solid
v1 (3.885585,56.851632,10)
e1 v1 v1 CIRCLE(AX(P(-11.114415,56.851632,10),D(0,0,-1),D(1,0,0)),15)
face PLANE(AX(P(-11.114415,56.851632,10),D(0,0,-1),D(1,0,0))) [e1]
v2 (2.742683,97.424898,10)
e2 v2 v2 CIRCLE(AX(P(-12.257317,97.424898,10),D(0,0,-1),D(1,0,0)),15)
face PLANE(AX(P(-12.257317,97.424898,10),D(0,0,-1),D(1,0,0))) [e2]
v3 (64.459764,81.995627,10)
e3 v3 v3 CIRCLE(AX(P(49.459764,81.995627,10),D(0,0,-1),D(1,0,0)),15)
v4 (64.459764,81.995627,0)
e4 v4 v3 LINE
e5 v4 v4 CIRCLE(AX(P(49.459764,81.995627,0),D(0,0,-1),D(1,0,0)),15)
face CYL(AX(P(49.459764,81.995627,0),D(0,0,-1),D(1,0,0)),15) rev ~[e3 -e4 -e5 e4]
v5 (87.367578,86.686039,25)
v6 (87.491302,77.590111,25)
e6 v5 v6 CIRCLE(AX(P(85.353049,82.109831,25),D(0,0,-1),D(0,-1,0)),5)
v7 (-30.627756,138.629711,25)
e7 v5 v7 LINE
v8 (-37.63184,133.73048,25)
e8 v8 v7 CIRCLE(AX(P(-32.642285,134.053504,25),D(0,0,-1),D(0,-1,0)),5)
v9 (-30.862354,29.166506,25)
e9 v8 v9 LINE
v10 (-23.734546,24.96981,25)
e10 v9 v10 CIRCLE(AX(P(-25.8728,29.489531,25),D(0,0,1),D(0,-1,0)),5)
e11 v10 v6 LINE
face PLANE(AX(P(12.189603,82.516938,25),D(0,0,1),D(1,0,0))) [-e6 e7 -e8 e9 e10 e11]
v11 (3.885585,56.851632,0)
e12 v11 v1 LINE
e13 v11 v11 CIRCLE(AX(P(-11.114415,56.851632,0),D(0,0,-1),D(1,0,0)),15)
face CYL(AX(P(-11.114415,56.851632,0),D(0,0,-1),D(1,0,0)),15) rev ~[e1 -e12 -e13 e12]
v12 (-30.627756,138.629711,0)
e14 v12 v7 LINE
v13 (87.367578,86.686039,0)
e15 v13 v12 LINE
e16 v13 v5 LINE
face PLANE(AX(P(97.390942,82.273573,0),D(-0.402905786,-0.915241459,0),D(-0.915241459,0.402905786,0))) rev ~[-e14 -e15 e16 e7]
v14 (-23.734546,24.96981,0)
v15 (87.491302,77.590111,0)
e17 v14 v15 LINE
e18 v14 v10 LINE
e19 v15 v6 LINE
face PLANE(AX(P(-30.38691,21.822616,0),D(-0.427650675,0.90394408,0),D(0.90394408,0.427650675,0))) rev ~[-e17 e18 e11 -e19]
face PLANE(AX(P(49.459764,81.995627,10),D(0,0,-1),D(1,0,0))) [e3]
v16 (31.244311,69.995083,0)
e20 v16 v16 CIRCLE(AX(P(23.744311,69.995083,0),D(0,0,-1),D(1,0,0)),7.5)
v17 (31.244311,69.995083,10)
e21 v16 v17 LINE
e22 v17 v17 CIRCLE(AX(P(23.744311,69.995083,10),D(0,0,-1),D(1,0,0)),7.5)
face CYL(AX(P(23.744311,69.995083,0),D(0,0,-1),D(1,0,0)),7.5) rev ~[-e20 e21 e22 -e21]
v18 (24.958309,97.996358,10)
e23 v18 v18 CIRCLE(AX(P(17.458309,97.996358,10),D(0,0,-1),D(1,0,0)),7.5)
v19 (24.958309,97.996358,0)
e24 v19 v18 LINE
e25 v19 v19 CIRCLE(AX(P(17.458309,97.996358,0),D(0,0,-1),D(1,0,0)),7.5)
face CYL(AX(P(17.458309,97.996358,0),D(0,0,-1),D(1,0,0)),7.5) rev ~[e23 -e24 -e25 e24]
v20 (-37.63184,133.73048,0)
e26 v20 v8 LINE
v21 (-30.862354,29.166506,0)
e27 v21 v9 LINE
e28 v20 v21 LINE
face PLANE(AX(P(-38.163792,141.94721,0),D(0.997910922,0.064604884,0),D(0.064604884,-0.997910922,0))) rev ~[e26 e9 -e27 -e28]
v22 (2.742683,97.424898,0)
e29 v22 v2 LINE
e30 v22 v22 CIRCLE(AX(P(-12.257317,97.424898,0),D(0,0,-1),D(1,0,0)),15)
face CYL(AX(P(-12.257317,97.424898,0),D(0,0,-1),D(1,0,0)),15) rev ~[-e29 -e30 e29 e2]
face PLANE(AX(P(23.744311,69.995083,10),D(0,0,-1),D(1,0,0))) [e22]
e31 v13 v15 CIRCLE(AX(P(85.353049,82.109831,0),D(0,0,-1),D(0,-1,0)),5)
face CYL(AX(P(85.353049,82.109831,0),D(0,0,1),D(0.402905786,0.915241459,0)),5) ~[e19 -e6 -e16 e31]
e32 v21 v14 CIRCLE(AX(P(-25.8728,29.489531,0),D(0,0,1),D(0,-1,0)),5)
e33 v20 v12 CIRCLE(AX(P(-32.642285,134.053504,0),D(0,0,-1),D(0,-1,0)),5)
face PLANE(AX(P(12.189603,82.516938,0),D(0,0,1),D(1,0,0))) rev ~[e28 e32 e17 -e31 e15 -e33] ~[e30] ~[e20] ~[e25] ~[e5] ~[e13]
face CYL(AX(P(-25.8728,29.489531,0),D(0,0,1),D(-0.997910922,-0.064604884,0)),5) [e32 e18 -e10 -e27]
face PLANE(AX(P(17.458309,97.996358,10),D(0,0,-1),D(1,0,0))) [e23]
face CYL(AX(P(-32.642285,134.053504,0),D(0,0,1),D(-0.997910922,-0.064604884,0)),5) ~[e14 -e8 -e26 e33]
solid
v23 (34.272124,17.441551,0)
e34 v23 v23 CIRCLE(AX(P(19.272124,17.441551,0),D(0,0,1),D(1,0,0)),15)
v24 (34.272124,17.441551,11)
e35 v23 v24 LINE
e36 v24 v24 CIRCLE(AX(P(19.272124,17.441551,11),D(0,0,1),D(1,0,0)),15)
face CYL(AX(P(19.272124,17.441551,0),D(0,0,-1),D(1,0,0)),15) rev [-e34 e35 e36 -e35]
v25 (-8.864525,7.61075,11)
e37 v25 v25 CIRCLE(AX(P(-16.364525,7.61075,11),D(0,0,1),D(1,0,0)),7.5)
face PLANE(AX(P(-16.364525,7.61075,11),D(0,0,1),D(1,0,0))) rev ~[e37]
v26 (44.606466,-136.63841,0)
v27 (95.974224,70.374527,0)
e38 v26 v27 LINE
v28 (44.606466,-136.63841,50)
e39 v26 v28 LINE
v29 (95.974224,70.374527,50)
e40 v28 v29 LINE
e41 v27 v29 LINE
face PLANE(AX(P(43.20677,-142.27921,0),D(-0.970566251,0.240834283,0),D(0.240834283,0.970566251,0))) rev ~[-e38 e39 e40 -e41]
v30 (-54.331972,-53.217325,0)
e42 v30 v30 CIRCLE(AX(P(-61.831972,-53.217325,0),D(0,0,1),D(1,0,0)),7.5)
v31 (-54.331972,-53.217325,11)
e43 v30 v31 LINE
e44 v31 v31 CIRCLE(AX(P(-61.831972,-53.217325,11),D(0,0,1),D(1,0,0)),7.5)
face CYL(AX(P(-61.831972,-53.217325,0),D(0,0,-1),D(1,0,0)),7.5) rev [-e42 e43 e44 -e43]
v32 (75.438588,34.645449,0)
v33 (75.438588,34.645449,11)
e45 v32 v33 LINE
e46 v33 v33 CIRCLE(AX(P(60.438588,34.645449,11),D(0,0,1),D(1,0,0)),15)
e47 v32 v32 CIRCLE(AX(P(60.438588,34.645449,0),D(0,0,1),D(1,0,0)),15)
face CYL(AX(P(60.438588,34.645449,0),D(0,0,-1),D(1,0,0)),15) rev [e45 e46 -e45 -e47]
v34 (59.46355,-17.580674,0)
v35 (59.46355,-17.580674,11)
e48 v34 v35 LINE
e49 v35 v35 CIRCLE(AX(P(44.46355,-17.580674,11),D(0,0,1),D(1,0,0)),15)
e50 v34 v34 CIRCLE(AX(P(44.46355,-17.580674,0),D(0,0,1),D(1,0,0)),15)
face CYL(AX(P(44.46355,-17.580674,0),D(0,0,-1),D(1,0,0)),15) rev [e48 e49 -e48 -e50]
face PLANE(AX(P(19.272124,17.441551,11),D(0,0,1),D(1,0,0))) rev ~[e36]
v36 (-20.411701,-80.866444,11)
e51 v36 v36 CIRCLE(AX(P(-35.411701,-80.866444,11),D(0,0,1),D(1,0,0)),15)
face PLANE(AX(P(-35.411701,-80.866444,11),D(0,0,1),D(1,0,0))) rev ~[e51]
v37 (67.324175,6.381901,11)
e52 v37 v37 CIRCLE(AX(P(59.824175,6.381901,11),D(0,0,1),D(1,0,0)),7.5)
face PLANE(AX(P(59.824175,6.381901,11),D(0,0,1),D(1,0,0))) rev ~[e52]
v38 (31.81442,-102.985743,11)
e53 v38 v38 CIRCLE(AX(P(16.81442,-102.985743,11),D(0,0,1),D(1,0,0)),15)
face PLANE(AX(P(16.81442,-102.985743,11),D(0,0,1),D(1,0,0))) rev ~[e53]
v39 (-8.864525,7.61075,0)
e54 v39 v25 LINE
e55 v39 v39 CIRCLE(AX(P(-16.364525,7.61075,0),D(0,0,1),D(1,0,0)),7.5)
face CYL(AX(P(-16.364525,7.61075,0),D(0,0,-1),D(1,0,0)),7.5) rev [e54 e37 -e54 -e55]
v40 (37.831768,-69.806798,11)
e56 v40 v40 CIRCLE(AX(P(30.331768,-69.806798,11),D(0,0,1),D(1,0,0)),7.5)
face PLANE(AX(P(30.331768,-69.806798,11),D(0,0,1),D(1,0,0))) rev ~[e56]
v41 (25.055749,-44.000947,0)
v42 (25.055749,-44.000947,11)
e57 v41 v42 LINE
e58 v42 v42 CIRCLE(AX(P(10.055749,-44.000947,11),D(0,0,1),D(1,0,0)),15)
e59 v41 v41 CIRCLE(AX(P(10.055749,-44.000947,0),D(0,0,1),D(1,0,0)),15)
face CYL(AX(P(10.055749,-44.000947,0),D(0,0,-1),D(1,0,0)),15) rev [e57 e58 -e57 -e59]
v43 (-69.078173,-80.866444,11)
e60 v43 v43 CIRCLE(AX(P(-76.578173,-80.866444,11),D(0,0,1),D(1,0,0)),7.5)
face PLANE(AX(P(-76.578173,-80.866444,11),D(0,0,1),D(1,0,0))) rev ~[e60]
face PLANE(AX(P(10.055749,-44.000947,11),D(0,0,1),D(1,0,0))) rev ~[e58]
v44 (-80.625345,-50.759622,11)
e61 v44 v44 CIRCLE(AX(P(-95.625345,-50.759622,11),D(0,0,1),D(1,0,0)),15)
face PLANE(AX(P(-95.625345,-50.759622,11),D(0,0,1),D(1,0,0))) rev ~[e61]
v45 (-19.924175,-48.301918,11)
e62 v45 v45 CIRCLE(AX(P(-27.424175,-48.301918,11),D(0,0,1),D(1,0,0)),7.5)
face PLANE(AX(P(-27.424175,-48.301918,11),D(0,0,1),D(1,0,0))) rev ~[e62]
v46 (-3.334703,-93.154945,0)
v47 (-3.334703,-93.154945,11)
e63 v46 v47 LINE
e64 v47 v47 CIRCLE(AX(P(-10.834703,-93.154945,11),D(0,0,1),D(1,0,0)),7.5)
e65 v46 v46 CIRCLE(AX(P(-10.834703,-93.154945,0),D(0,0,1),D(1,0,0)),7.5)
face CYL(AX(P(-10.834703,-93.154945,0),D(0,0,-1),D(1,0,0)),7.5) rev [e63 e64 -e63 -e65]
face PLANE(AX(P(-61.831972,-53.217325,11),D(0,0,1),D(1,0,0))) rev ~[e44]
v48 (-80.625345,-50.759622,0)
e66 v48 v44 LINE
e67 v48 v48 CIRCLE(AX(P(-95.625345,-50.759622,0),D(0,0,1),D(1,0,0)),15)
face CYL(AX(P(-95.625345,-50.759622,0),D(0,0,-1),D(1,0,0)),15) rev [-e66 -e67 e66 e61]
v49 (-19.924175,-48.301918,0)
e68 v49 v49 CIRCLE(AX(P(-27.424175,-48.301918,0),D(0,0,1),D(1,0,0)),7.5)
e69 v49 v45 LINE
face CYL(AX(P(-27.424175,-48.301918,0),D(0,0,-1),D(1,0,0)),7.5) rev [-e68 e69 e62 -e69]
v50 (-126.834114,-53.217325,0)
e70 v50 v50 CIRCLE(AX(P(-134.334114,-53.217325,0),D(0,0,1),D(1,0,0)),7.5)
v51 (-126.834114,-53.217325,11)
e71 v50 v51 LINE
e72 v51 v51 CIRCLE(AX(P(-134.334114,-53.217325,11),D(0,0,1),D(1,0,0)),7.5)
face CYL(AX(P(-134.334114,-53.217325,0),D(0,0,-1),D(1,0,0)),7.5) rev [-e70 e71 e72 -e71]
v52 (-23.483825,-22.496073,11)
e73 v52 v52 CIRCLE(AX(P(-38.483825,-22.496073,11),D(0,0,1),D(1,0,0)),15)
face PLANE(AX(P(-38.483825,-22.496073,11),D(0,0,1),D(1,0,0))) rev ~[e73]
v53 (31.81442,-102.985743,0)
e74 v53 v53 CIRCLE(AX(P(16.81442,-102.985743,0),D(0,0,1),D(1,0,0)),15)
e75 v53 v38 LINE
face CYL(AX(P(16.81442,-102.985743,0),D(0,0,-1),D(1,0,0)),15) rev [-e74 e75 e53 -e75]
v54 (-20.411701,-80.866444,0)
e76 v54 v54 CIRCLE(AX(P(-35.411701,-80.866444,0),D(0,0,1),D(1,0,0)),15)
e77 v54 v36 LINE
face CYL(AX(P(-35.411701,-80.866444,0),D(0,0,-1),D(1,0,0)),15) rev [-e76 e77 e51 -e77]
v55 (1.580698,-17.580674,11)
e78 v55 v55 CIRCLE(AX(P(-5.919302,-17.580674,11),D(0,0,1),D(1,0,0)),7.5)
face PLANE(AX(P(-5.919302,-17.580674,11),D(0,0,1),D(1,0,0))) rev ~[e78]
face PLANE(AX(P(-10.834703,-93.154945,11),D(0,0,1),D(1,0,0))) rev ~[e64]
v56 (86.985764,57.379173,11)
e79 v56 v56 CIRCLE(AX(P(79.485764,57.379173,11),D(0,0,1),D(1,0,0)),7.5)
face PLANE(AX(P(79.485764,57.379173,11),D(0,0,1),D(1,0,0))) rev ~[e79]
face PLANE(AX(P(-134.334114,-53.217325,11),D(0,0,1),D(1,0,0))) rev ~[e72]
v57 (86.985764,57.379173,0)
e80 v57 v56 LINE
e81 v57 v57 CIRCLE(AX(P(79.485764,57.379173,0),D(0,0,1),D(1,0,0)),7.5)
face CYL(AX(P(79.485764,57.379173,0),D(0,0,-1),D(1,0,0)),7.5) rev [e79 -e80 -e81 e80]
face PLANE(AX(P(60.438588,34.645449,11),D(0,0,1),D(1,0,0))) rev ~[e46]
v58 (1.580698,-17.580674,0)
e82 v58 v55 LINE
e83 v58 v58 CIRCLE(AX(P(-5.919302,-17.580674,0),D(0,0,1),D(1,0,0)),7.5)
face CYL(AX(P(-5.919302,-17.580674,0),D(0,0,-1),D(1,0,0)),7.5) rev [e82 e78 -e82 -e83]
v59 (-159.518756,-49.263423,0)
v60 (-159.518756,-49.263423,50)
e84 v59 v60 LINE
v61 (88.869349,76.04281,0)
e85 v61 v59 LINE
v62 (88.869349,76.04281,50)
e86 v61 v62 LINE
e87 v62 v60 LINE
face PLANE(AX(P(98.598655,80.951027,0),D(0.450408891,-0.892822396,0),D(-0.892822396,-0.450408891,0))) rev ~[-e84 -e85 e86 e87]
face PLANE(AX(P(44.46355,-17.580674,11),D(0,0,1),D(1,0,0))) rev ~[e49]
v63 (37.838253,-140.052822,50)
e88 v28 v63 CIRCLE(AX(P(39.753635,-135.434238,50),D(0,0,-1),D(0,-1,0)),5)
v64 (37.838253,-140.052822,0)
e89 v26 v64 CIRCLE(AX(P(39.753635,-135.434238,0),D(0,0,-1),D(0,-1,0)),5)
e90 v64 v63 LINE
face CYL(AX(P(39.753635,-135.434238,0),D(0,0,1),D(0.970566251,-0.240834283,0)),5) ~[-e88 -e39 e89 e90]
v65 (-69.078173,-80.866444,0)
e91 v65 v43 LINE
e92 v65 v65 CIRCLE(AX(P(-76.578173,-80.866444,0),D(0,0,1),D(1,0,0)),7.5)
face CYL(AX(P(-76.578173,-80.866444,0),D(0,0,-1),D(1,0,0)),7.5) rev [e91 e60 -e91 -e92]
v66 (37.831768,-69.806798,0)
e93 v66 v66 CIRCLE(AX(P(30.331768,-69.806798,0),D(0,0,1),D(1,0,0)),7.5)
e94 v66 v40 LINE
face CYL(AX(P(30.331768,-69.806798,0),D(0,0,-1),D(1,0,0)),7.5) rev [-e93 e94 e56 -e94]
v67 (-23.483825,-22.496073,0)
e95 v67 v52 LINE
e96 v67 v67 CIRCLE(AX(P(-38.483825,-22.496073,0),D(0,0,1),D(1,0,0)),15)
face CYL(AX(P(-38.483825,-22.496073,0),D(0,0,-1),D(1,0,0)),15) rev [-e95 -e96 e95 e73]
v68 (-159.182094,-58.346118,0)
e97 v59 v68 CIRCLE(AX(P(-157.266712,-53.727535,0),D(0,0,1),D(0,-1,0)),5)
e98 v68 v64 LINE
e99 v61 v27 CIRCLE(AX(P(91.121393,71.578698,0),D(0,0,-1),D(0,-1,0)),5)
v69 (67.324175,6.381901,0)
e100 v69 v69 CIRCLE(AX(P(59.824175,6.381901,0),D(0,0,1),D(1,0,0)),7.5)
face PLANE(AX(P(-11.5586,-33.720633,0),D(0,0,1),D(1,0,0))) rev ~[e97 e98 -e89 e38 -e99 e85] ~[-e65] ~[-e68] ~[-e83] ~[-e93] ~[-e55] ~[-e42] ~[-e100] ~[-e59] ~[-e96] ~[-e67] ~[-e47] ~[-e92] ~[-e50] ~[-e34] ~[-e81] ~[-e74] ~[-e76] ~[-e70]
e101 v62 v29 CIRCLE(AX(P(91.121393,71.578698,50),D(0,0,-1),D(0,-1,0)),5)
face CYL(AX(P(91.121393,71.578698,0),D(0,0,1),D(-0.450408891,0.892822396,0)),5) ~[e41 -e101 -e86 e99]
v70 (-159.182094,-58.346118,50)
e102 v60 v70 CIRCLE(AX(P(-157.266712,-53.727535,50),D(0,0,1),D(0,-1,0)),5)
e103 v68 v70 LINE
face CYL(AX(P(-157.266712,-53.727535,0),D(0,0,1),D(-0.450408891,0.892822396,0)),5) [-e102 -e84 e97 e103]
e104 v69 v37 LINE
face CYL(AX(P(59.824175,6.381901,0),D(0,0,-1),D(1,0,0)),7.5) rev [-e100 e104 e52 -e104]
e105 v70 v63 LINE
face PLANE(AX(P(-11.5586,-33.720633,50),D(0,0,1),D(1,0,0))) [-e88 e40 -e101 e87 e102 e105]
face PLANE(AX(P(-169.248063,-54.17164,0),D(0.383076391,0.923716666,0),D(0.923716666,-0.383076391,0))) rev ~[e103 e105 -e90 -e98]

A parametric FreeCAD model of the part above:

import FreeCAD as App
import Part
import Sketcher
Q = App.Units.Quantity


def edges_at(feature, points):
    """Names of the edges that pass closest to the given points."""
    edges = feature.Shape.Edges
    near = lambda p: min(range(len(edges)), key=lambda i: edges[i].distToShape(Part.Vertex(*p))[0])
    return sorted({f"Edge{near(p) + 1}" for p in points})


def add_polygon(sketch, points):
    """Adds a closed chain of lines whose ends are joined by coincident constraints."""
    first, n = sketch.GeometryCount, len(points)
    for a, b in zip(points, points[1:] + points[:1]):
        sketch.addGeometry(Part.LineSegment(App.Vector(*a, 0), App.Vector(*b, 0)), False)
    for i in range(n):
        sketch.addConstraint(Sketcher.Constraint("Coincident", first + i, 2, first + (i + 1) % n, 1))

doc = App.newDocument("Part")
body = doc.addObject("PartDesign::Body", "Body")

# Sketch on XY plane
sketch1 = body.newObject("Sketcher::SketchObject", "Sketch")
sketch1.AttachmentSupport = (doc.getObject("XY_Plane"), [""])
sketch1.MapMode = "FlatFace"
add_polygon(sketch1, [(99, 81), (-169, -54), (43, -142)])  # lines 0-2
sketch1.addConstraint([
    Sketcher.Constraint("Equal", 1, 2),
    Sketcher.Constraint("Distance", 0, Q("299.999999 mm")),
    Sketcher.Constraint("Distance", 1, Q("230 mm")),
    Sketcher.Constraint("DistanceY", 0, 2, -1, 1, Q("54.17164 mm")),
    Sketcher.Constraint("DistanceX", -1, 1, 1, 2, Q("43.20677 mm")),
    Sketcher.Constraint("DistanceY", 1, 2, -1, 1, Q("142.27921 mm")),
])
pad1 = body.newObject("PartDesign::Pad", "Pad")
pad1.Profile = sketch1
pad1.Length = 50

# Sketch on XY plane
sketch2 = body.newObject("Sketcher::SketchObject", "Sketch001")
sketch2.AttachmentSupport = (doc.getObject("XY_Plane"), [""])
sketch2.MapMode = "FlatFace"
sketch2.addGeometry([
    Part.Circle(App.Vector(-96, -51, 0), App.Vector(0, 0, 1), 15),  # 0
    Part.Circle(App.Vector(-77, -81, 0), App.Vector(0, 0, 1), 8),  # 1
    Part.Circle(App.Vector(-134, -53, 0), App.Vector(0, 0, 1), 8),  # 2
    Part.Circle(App.Vector(-38, -22, 0), App.Vector(0, 0, 1), 15),  # 3
    Part.Circle(App.Vector(-35, -81, 0), App.Vector(0, 0, 1), 15),  # 4
    Part.Circle(App.Vector(-62, -53, 0), App.Vector(0, 0, 1), 8),  # 5
    Part.Circle(App.Vector(-27, -48, 0), App.Vector(0, 0, 1), 8),  # 6
    Part.Circle(App.Vector(-11, -93, 0), App.Vector(0, 0, 1), 8),  # 7
    Part.Circle(App.Vector(-6, -18, 0), App.Vector(0, 0, 1), 8),  # 8
    Part.Circle(App.Vector(-16, 8, 0), App.Vector(0, 0, 1), 8),  # 9
    Part.Circle(App.Vector(10, -44, 0), App.Vector(0, 0, 1), 15),  # 10
    Part.Circle(App.Vector(17, -103, 0), App.Vector(0, 0, 1), 15),  # 11
    Part.Circle(App.Vector(30, -70, 0), App.Vector(0, 0, 1), 8),  # 12
    Part.Circle(App.Vector(44, -18, 0), App.Vector(0, 0, 1), 15),  # 13
    Part.Circle(App.Vector(19, 17, 0), App.Vector(0, 0, 1), 15),  # 14
    Part.Circle(App.Vector(60, 35, 0), App.Vector(0, 0, 1), 15),  # 15
    Part.Circle(App.Vector(60, 6, 0), App.Vector(0, 0, 1), 8),  # 16
    Part.Circle(App.Vector(79, 57, 0), App.Vector(0, 0, 1), 8),  # 17
], False)
sketch2.addConstraint([
    Sketcher.Constraint("Equal", 1, 2),
    Sketcher.Constraint("Equal", 0, 3),
    Sketcher.Constraint("Equal", 3, 4),
    Sketcher.Constraint("Equal", 2, 5),
    Sketcher.Constraint("Equal", 5, 6),
    Sketcher.Constraint("Equal", 6, 7),
    Sketcher.Constraint("Equal", 7, 8),
    Sketcher.Constraint("Equal", 8, 9),
    Sketcher.Constraint("Equal", 4, 10),
    Sketcher.Constraint("Equal", 10, 11),
    Sketcher.Constraint("Equal", 9, 12),
    Sketcher.Constraint("Equal", 11, 13),
    Sketcher.Constraint("Equal", 13, 14),
    Sketcher.Constraint("Equal", 14, 15),
    Sketcher.Constraint("Equal", 12, 16),
    Sketcher.Constraint("Equal", 16, 17),
    Sketcher.Constraint("Horizontal", 1, 3, 4, 3),
    Sketcher.Constraint("Horizontal", 2, 3, 5, 3),
    Sketcher.Constraint("Horizontal", 8, 3, 13, 3),
    Sketcher.Constraint("Diameter", 0, Q("30 mm")),
    Sketcher.Constraint("Diameter", 1, Q("15 mm")),
    Sketcher.Constraint("DistanceX", 4, 3, 7, 3, Q("24.576998 mm")),
    Sketcher.Constraint("DistanceX", 4, 3, -1, 1, Q("35.411701 mm")),
    Sketcher.Constraint("DistanceY", 12, 3, -1, 1, Q("69.806798 mm")),
    Sketcher.Constraint("DistanceY", -1, 1, 16, 3, Q("6.381901 mm")),
    Sketcher.Constraint("DistanceX", 1, 3, 5, 3, Q("14.746201 mm")),
    Sketcher.Constraint("DistanceY", 7, 3, 4, 3, Q("12.288501 mm")),
    Sketcher.Constraint("DistanceY", 3, 3, 8, 3, Q("4.915399 mm")),
    Sketcher.Constraint("DistanceX", 4, 3, 8, 3, Q("29.492399 mm")),
    Sketcher.Constraint("DistanceX", 3, 3, 9, 3, Q("22.1193 mm")),
    Sketcher.Constraint("DistanceY", 11, 3, 7, 3, Q("9.830798 mm")),
    Sketcher.Constraint("DistanceX", 10, 3, 13, 3, Q("34.407801 mm")),
    Sketcher.Constraint("DistanceY", 9, 3, 14, 3, Q("9.830801 mm")),
    Sketcher.Constraint("DistanceY", 9, 3, 15, 3, Q("27.034699 mm")),
    Sketcher.Constraint("DistanceY", -1, 1, 9, 3, Q("7.61075 mm")),
    Sketcher.Constraint("DistanceX", -1, 1, 10, 3, Q("10.055749 mm")),
    Sketcher.Constraint("DistanceX", -1, 1, 11, 3, Q("16.81442 mm")),
    Sketcher.Constraint("DistanceX", -1, 1, 12, 3, Q("30.331768 mm")),
    Sketcher.Constraint("DistanceX", -1, 1, 15, 3, Q("60.438588 mm")),
    Sketcher.Constraint("DistanceX", 0, 3, 1, 3, Q("19.047172 mm")),
    Sketcher.Constraint("DistanceX", 2, 3, 0, 3, Q("38.708769 mm")),
    Sketcher.Constraint("DistanceY", 1, 3, 2, 3, Q("27.649119 mm")),
    Sketcher.Constraint("DistanceX", 0, 3, 3, 3, Q("57.14152 mm")),
    Sketcher.Constraint("DistanceY", 0, 3, 3, 3, Q("28.263549 mm")),
    Sketcher.Constraint("DistanceY", 1, 3, 3, 3, Q("58.370371 mm")),
    Sketcher.Constraint("DistanceX", 5, 3, 4, 3, Q("26.420271 mm")),
    Sketcher.Constraint("DistanceX", 3, 3, 6, 3, Q("11.05965 mm")),
    Sketcher.Constraint("DistanceY", 6, 3, 9, 3, Q("55.912668 mm")),
    Sketcher.Constraint("DistanceY", 6, 3, 10, 3, Q("4.300971 mm")),
    Sketcher.Constraint("DistanceX", 9, 3, 14, 3, Q("35.636649 mm")),
    Sketcher.Constraint("DistanceX", 14, 3, 16, 3, Q("40.552051 mm")),
    Sketcher.Constraint("DistanceX", 16, 3, 17, 3, Q("19.661589 mm")),
    Sketcher.Constraint("DistanceY", 0, 3, -1, 1, Q("50.759622 mm")),
    Sketcher.Constraint("DistanceY", -1, 1, 17, 3, Q("57.379173 mm")),
])
pocket1 = body.newObject("PartDesign::Pocket", "Pocket")
pocket1.Profile = sketch2
pocket1.Length = 11
pocket1.Reversed = True
doc.recompute()

fillet = body.newObject("PartDesign::Fillet", "Fillet")
fillet.Base = (pocket1, edges_at(pocket1, [(-169.248, -54.172, 25), (98.599, 80.951, 25), (43.207, -142.279, 25)]))
fillet.Radius = 5
body2 = doc.addObject("PartDesign::Body", "Body001")

# Sketch on XY plane
sketch3 = body2.newObject("Sketcher::SketchObject", "Sketch002")
sketch3.AttachmentSupport = (doc.getObject("XY_Plane001"), [""])
sketch3.MapMode = "FlatFace"
add_polygon(sketch3, [(-38, 142), (-30, 22), (97, 82)])  # lines 0-2
sketch3.addConstraint([
    Sketcher.Constraint("Distance", 0, Q("120.376069 mm")),
    Sketcher.Constraint("DistanceX", 0, 2, -1, 1, Q("30.38691 mm")),
    Sketcher.Constraint("DistanceX", -1, 1, 1, 2, Q("97.390942 mm")),
    Sketcher.Constraint("DistanceY", -1, 1, 2, 2, Q("141.94721 mm")),
    Sketcher.Constraint("Distance", 1, Q("141.355925 mm")),
    Sketcher.Constraint("Distance", 2, Q("148.108166 mm")),
])
pad2 = body2.newObject("PartDesign::Pad", "Pad001")
pad2.Profile = sketch3
pad2.Length = 25

# Sketch on XY plane
sketch4 = body2.newObject("Sketcher::SketchObject", "Sketch003")
sketch4.AttachmentSupport = (doc.getObject("XY_Plane001"), [""])
sketch4.MapMode = "FlatFace"
sketch4.addGeometry([
    Part.Circle(App.Vector(-11, 57, 0), App.Vector(0, 0, 1), 15),  # 0
    Part.Circle(App.Vector(24, 70, 0), App.Vector(0, 0, 1), 8),  # 1
    Part.Circle(App.Vector(49, 82, 0), App.Vector(0, 0, 1), 15),  # 2
    Part.Circle(App.Vector(17, 98, 0), App.Vector(0, 0, 1), 8),  # 3
    Part.Circle(App.Vector(-12, 97, 0), App.Vector(0, 0, 1), 15),  # 4
], False)
sketch4.addConstraint([
    Sketcher.Constraint("Equal", 0, 2),
    Sketcher.Constraint("Equal", 1, 3),
    Sketcher.Constraint("Equal", 2, 4),
    Sketcher.Constraint("Diameter", 0, Q("30 mm")),
    Sketcher.Constraint("Diameter", 1, Q("15 mm")),
    Sketcher.Constraint("DistanceY", -1, 1, 4, 3, Q("97.424898 mm")),
    Sketcher.Constraint("DistanceX", -1, 1, 1, 3, Q("23.744311 mm")),
    Sketcher.Constraint("DistanceX", -1, 1, 3, 3, Q("17.458309 mm")),
    Sketcher.Constraint("DistanceY", -1, 1, 3, 3, Q("97.996358 mm")),
    Sketcher.Constraint("DistanceY", 0, 3, 1, 3, Q("13.143451 mm")),
    Sketcher.Constraint("DistanceX", 0, 3, 2, 3, Q("60.574179 mm")),
    Sketcher.Constraint("DistanceY", 2, 3, 3, 3, Q("16.000731 mm")),
    Sketcher.Constraint("DistanceX", 4, 3, 2, 3, Q("61.717081 mm")),
    Sketcher.Constraint("DistanceX", 0, 3, -1, 1, Q("11.114415 mm")),
    Sketcher.Constraint("DistanceY", -1, 1, 0, 3, Q("56.851632 mm")),
])
pocket2 = body2.newObject("PartDesign::Pocket", "Pocket001")
pocket2.Profile = sketch4
pocket2.Length = 10
pocket2.Reversed = True
doc.recompute()

fillet2 = body2.newObject("PartDesign::Fillet", "Fillet001")
fillet2.Base = (pocket2, edges_at(pocket2, [(-38.164, 141.947, 12.5), (97.391, 82.274, 12.5), (-30.387, 21.823, 12.5)]))
fillet2.Radius = 5

doc.recompute()
